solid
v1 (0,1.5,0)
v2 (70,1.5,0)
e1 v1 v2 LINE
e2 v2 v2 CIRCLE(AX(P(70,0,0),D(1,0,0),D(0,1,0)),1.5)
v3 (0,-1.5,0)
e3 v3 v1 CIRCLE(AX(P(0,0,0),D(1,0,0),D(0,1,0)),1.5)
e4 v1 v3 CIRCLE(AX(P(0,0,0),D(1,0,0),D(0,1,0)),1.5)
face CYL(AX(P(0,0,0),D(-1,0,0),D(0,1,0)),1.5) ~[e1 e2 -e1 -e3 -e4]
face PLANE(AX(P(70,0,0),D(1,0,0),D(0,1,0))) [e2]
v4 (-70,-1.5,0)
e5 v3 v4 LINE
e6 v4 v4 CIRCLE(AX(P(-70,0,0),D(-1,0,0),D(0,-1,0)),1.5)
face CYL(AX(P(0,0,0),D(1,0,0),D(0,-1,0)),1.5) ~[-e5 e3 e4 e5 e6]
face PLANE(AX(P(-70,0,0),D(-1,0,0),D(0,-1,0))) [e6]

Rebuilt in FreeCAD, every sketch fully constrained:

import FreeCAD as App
import Part
import Sketcher

doc = App.newDocument("Part")
body = doc.addObject("PartDesign::Body", "Body")

sketch1 = doc.addObject("Sketcher::SketchObject", "Sketch")
body.addObject(sketch1)
sketch1.AttachmentSupport = (doc.YZ_Plane, [""])
sketch1.MapMode = "FlatFace"
sketch1.addGeometry(Part.Circle(App.Vector(0, 0, 0), App.Vector(0, 0, 1), 1.5), False)
sketch1.addConstraint([
    Sketcher.Constraint("Coincident", 0, 3, -1, 1),
    Sketcher.Constraint("Diameter", 0, 3.0),
])
pad1 = doc.addObject("PartDesign::Pad", "Pad")
body.addObject(pad1)
pad1.Profile = sketch1
pad1.Length = 70

sketch2 = doc.addObject("Sketcher::SketchObject", "Sketch001")
body.addObject(sketch2)
sketch2.AttachmentSupport = (doc.YZ_Plane, [""])
sketch2.MapMode = "FlatFace"
sketch2.addGeometry(Part.Circle(App.Vector(0, 0, 0), App.Vector(0, 0, 1), 1.5), False)
sketch2.addConstraint([
    Sketcher.Constraint("Coincident", 0, 3, -1, 1),
    Sketcher.Constraint("Diameter", 0, 3.0),
])
pad2 = doc.addObject("PartDesign::Pad", "Pad001")
body.addObject(pad2)
pad2.Profile = sketch2
pad2.Length = 70
pad2.Reversed = True

doc.recompute()
